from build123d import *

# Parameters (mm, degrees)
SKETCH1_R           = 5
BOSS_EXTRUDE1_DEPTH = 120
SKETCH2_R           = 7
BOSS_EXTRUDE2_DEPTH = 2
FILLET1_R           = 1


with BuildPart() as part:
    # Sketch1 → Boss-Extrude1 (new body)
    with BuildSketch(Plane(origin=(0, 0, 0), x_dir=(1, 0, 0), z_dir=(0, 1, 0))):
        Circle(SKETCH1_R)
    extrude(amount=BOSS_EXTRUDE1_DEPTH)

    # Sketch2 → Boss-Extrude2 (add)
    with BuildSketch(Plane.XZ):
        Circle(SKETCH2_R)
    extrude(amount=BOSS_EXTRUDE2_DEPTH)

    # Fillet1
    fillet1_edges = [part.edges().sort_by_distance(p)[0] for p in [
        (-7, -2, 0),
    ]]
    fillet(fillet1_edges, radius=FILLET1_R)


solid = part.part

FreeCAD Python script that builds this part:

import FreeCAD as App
import Part
import Sketcher

V = App.Vector
Q = App.Units.Quantity


def edges_at(feature, points):
    """Names of the edges that pass closest to the given points."""
    edges = feature.Shape.Edges
    near = lambda p: min(range(len(edges)), key=lambda i: edges[i].distToShape(Part.Vertex(*p))[0])
    return sorted({f"Edge{near(p) + 1}" for p in points})

doc = App.newDocument("Part")
params = doc.addObject("Spreadsheet::Sheet", "Params")
for row, (alias, value) in enumerate([
    ("sketch1_diameter", "10 mm"),
    ("pad1_length", "120 mm"),
    ("sketch2_diameter", "14 mm"),
    ("pad2_length", "2 mm"),
    ("fillet_radius", "1 mm"),
], start=1):
    params.set(f"A{row}", alias)
    params.set(f"B{row}", "=" + value)
    params.setAlias(f"B{row}", alias)

body = doc.addObject("PartDesign::Body", "Body")

# Sketch on XZ plane
sketch1 = body.newObject("Sketcher::SketchObject", "Sketch")
sketch1.AttachmentSupport = (doc.getObject("XZ_Plane"), [""])
sketch1.MapMode = "FlatFace"
sketch1.addGeometry(Part.Circle(V(0, 0, 0), V(0, 0, 1), 5), False)
sketch1.addConstraint(Sketcher.Constraint("Coincident", 0, 3, -1, 1))
sketch1.addConstraint(Sketcher.Constraint("Diameter", 0, Q("10 mm")))
sketch1.setExpression("Constraints[1]", "Params.sketch1_diameter")
pad1 = body.newObject("PartDesign::Pad", "Pad")
pad1.Profile = sketch1
pad1.setExpression("Length", "Params.pad1_length")
pad1.Reversed = True

# Sketch on XZ plane
sketch2 = body.newObject("Sketcher::SketchObject", "Sketch001")
sketch2.AttachmentSupport = (doc.getObject("XZ_Plane"), [""])
sketch2.MapMode = "FlatFace"
sketch2.addGeometry(Part.Circle(V(0, 0, 0), V(0, 0, 1), 7), False)
sketch2.addConstraint(Sketcher.Constraint("Coincident", 0, 3, -1, 1))
sketch2.addConstraint(Sketcher.Constraint("Diameter", 0, Q("14 mm")))
sketch2.setExpression("Constraints[1]", "Params.sketch2_diameter")
pad2 = body.newObject("PartDesign::Pad", "Pad001")
pad2.Profile = sketch2
pad2.setExpression("Length", "Params.pad2_length")
doc.recompute()

fillet = body.newObject("PartDesign::Fillet", "Fillet")
fillet.Base = (pad2, edges_at(pad2, [(-7, -2, 0)]))
fillet.setExpression("Radius", "Params.fillet_radius")

doc.recompute()
